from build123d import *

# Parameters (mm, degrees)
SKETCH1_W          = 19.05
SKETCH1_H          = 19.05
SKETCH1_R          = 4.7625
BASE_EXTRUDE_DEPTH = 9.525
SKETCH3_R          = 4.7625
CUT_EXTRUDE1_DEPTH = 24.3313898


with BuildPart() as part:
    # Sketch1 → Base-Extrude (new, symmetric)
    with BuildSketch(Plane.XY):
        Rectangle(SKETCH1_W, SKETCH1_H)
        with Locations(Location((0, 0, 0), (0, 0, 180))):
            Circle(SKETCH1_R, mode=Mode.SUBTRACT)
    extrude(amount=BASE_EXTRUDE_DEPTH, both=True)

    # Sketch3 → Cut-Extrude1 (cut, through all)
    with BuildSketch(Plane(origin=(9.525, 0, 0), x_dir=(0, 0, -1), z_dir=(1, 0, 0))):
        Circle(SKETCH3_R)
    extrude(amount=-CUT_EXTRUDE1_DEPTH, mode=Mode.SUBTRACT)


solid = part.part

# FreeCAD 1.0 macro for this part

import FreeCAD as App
import Part
import Sketcher
Q = App.Units.Quantity


def add_polygon(sketch, points):
    """Adds a closed chain of lines whose ends are joined by coincident constraints."""
    first, n = sketch.GeometryCount, len(points)
    for a, b in zip(points, points[1:] + points[:1]):
        sketch.addGeometry(Part.LineSegment(App.Vector(*a, 0), App.Vector(*b, 0)), False)
    for i in range(n):
        sketch.addConstraint(Sketcher.Constraint("Coincident", first + i, 2, first + (i + 1) % n, 1))

doc = App.newDocument("Part")
body = doc.addObject("PartDesign::Body", "Body")

sketch1 = doc.addObject("Sketcher::SketchObject", "Sketch")
body.addObject(sketch1)
sketch1.AttachmentSupport = (doc.XY_Plane, [""])
sketch1.MapMode = "FlatFace"
add_polygon(sketch1, [(-9.5, 9.5), (-9.5, -9.5), (9.5, -9.5), (9.5, 9.5)])
sketch1.addGeometry(Part.Circle(App.Vector(0, 0, 0), App.Vector(0, 0, 1), 4.8), False)
sketch1.addConstraint([
    Sketcher.Constraint("Vertical", 0),
    Sketcher.Constraint("Horizontal", 1),
    Sketcher.Constraint("Vertical", 2),
    Sketcher.Constraint("Horizontal", 3),
    Sketcher.Constraint("Coincident", 4, 3, -1, 1),
    Sketcher.Constraint("Symmetric", 0, 2, 2, 2, -1, 1),
    Sketcher.Constraint("Equal", 3, 0),
    Sketcher.Constraint("Diameter", 4, Q("0.375 in")),
    Sketcher.Constraint("DistanceX", 1, 1, 1, 2, Q("0.75 in")),
])
pad1 = doc.addObject("PartDesign::Pad", "Pad")
body.addObject(pad1)
pad1.Profile = sketch1
pad1.Length = Q("0.75 in")
pad1.Midplane = True

sketch2 = doc.addObject("Sketcher::SketchObject", "Sketch001")
body.addObject(sketch2)
sketch2.AttachmentSupport = (doc.YZ_Plane, [""])
sketch2.MapMode = "FlatFace"
sketch2.AttachmentOffset = App.Placement(App.Vector(0, 0, 0.375 * 25.4), App.Rotation())
sketch2.addGeometry(Part.Circle(App.Vector(0, 0, 0), App.Vector(0, 0, 1), 4.8), False)
sketch2.addConstraint([
    Sketcher.Constraint("Coincident", 0, 3, -1, 1),
    Sketcher.Constraint("Diameter", 0, Q("0.375 in")),
])
pocket1 = doc.addObject("PartDesign::Pocket", "Pocket")
body.addObject(pocket1)
pocket1.Profile = sketch2
pocket1.Type = "ThroughAll"

doc.recompute()
